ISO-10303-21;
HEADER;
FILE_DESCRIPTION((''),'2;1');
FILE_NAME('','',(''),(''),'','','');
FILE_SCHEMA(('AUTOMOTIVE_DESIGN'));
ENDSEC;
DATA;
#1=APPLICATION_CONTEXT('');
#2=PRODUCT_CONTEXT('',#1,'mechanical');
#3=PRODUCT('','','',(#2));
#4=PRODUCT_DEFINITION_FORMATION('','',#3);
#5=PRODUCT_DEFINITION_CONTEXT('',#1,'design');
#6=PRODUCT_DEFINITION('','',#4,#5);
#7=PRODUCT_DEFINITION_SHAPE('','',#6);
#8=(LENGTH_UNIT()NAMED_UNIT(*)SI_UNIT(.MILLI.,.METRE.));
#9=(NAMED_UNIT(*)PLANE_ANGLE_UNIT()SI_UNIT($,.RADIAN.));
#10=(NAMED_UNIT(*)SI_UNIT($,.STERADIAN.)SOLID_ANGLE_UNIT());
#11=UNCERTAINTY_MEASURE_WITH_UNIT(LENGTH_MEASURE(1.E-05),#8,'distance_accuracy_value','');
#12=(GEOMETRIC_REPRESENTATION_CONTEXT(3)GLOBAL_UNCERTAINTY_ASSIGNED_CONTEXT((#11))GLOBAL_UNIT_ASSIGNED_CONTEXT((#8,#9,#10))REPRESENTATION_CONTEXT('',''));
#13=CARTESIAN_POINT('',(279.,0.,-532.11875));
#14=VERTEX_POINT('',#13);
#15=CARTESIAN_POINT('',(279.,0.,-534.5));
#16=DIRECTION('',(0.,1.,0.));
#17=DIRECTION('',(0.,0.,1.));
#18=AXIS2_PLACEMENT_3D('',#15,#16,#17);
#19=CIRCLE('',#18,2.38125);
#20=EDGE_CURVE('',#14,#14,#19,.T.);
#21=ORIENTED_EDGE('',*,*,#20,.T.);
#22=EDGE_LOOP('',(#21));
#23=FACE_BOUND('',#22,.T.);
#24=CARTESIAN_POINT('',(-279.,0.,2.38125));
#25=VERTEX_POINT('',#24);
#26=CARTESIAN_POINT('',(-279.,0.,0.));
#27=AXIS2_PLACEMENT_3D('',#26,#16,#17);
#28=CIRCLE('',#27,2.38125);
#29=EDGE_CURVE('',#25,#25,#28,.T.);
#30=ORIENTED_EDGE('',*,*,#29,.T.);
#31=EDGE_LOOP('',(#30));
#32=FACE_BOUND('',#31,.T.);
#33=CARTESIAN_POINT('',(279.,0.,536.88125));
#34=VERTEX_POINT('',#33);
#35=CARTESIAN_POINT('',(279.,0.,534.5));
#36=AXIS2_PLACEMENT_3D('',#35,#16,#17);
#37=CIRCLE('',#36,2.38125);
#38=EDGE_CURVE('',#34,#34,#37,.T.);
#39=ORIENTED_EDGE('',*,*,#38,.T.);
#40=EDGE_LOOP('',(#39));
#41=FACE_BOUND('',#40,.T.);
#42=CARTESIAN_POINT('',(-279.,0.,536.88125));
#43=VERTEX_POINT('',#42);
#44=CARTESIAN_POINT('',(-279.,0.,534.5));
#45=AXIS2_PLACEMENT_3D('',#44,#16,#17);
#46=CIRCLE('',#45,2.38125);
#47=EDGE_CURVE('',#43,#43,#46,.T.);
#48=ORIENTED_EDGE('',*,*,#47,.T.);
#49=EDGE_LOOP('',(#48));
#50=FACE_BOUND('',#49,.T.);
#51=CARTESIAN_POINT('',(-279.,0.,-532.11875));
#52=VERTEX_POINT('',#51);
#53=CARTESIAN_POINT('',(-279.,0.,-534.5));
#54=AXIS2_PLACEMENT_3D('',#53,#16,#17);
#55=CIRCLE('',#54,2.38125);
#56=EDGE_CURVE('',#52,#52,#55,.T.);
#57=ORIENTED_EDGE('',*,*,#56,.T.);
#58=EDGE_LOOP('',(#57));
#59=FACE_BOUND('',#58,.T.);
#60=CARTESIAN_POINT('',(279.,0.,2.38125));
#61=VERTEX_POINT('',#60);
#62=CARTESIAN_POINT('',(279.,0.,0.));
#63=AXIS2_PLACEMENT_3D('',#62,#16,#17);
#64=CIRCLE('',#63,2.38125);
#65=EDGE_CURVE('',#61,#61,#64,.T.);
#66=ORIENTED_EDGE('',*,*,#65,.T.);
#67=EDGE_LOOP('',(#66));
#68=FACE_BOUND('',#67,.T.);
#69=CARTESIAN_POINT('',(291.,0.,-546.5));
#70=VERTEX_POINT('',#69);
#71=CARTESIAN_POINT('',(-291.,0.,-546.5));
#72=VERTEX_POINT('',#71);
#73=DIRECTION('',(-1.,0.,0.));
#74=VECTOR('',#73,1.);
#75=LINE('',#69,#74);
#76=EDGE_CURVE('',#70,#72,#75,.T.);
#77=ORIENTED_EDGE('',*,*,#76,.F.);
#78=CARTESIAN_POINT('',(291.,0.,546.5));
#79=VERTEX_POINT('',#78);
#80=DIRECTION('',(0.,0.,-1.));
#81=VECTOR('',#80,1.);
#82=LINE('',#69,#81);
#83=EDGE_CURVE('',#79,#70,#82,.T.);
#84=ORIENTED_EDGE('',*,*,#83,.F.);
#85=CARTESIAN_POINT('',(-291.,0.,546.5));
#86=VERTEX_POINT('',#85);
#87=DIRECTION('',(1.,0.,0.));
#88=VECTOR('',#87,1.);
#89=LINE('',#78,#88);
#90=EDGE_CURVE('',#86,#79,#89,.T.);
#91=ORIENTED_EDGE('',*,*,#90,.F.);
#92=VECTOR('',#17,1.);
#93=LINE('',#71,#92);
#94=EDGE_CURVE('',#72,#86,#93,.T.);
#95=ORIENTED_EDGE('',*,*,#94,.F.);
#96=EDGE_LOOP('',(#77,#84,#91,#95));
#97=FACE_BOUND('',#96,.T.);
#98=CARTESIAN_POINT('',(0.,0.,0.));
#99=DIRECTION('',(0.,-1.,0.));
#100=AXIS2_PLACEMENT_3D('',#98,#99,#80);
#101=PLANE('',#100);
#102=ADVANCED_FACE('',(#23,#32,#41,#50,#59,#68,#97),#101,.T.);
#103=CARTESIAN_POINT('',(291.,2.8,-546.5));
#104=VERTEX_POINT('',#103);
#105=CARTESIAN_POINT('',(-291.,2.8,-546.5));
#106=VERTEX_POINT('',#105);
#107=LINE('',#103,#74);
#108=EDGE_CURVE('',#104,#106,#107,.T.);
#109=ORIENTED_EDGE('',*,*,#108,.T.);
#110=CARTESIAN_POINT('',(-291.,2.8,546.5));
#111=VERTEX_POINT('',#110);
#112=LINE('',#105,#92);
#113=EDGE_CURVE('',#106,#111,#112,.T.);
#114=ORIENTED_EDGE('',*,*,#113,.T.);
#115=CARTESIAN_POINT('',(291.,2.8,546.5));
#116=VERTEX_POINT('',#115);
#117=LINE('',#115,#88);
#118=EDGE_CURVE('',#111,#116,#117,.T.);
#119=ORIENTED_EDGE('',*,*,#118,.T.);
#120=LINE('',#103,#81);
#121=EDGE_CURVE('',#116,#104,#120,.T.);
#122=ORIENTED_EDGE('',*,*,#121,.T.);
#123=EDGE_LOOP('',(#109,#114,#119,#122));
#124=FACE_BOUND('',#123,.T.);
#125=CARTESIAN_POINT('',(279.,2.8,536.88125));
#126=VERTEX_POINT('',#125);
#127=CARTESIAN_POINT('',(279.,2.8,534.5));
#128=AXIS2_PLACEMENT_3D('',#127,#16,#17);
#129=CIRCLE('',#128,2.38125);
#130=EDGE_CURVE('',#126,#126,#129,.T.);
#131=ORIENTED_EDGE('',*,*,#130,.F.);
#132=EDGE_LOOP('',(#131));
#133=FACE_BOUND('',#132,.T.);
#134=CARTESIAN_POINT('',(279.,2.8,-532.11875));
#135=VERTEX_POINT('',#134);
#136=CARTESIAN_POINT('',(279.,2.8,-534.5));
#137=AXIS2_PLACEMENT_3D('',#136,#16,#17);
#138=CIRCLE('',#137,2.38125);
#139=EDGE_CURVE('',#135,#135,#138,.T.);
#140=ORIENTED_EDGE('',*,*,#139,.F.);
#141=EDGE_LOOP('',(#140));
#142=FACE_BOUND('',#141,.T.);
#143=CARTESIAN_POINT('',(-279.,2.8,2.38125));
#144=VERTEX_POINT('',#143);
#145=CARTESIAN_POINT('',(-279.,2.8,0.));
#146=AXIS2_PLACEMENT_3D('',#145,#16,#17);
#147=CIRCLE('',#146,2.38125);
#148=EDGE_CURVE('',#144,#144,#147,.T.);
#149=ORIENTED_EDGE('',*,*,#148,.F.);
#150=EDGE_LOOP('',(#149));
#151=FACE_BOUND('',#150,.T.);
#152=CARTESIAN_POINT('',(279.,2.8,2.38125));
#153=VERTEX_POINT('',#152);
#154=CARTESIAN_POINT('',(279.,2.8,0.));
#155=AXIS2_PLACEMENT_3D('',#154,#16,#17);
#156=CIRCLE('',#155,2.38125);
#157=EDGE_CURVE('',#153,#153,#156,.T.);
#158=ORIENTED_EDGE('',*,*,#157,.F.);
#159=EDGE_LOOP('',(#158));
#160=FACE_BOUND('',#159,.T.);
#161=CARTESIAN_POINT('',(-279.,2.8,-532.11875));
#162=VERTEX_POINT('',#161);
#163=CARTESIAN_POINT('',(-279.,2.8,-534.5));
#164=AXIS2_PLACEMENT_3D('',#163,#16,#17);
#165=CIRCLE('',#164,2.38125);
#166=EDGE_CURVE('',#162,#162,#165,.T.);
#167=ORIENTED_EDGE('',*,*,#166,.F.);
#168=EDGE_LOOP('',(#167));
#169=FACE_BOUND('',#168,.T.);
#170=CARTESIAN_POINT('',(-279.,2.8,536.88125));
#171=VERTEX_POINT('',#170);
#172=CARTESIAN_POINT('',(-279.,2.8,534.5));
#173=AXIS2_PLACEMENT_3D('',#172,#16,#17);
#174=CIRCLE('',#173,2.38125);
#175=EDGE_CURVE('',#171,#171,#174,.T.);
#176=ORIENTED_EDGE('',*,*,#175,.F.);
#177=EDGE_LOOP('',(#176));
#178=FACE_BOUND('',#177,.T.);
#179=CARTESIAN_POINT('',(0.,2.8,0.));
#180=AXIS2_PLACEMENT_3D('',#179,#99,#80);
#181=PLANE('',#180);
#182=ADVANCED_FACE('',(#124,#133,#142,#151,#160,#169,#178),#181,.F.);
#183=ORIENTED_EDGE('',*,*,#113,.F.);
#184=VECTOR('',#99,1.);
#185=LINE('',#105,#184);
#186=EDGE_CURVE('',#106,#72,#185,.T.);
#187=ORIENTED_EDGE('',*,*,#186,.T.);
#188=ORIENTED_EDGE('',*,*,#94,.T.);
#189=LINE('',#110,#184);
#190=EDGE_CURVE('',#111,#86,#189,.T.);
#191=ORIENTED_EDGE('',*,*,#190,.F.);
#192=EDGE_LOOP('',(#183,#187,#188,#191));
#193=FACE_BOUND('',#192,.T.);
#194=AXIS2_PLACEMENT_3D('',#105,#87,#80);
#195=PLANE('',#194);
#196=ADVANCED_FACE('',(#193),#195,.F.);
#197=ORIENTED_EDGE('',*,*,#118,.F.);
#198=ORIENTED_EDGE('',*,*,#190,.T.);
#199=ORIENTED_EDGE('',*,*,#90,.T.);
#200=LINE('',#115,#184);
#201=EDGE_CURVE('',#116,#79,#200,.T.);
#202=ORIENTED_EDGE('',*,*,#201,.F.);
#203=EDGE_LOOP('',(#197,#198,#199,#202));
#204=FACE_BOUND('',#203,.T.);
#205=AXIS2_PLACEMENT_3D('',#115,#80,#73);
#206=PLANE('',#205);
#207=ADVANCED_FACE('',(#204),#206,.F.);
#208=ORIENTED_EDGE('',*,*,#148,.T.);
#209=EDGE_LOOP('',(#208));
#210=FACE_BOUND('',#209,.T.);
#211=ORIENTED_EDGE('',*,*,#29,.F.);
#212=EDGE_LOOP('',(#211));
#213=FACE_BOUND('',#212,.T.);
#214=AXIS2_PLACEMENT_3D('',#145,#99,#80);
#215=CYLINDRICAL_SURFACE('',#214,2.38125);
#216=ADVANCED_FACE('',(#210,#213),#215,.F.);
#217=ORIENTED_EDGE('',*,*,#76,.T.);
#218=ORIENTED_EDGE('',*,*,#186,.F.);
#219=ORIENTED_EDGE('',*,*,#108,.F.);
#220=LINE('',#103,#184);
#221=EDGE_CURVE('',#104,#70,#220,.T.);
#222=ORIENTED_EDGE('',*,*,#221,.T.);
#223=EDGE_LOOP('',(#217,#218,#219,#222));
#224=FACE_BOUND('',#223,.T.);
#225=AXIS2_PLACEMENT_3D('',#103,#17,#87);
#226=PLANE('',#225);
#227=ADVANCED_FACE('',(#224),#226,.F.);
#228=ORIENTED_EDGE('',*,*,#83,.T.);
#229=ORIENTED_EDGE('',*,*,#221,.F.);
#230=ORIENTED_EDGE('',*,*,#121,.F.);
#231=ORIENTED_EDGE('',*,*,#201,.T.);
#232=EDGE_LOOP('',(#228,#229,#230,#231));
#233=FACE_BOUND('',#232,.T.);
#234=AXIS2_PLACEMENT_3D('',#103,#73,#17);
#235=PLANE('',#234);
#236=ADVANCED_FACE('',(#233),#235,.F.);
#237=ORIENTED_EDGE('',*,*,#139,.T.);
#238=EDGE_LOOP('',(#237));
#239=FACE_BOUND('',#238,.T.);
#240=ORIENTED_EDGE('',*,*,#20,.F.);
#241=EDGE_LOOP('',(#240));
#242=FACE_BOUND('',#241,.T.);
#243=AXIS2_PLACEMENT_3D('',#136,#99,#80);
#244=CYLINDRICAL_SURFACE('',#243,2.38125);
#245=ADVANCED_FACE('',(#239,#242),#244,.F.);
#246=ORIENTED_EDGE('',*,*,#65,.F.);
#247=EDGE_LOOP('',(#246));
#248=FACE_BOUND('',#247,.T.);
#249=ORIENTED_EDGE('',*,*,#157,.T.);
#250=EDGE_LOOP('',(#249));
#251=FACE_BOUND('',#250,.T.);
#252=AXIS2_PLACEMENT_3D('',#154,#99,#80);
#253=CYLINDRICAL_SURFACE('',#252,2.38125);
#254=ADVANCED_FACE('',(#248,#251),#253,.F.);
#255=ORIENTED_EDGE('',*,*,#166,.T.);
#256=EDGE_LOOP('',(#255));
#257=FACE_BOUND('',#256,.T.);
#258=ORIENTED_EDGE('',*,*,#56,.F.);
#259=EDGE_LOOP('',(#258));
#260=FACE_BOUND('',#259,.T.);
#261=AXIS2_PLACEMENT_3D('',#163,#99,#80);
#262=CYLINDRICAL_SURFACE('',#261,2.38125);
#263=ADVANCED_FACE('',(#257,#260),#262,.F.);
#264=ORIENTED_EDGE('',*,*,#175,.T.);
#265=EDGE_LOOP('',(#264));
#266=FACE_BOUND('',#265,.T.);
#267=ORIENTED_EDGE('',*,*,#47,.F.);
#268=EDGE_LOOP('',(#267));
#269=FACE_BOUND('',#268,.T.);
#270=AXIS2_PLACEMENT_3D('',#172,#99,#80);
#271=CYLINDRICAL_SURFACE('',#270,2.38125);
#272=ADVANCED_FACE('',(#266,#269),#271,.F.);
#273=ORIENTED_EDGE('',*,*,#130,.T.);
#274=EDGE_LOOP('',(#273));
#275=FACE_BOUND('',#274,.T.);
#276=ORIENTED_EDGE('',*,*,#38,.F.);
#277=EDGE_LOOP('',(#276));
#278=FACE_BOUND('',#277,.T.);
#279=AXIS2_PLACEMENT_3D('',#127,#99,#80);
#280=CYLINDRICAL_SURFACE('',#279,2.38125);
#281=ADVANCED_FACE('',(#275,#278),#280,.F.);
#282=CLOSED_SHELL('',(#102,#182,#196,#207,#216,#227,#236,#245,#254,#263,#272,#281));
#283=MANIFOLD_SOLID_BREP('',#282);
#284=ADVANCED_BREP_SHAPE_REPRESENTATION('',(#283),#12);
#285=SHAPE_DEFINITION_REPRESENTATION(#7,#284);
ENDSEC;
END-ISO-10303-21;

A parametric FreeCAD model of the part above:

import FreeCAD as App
import Part
import Sketcher

V = App.Vector
Q = App.Units.Quantity

doc = App.newDocument("Part")
body = doc.addObject("PartDesign::Body", "Body")

# Sketch on XZ plane
sketch1 = body.newObject("Sketcher::SketchObject", "Sketch")
sketch1.AttachmentSupport = (doc.getObject("XZ_Plane"), [""])
sketch1.MapMode = "FlatFace"
sketch1.addGeometry([
    Part.LineSegment(V(-291, -546.5, 0), V(-291, 546.5, 0)),  # 0
    Part.LineSegment(V(-291, 546.5, 0), V(291, 546.5, 0)),  # 1
    Part.LineSegment(V(291, 546.5, 0), V(291, -546.5, 0)),  # 2
    Part.LineSegment(V(291, -546.5, 0), V(-291, -546.5, 0)),  # 3
    Part.Circle(V(-279, 534.5, 0), V(0, 0, 1), 2.4),  # 4
    Part.Circle(V(279, 534.5, 0), V(0, 0, 1), 2.4),  # 5
    Part.Circle(V(-279, 0, 0), V(0, 0, 1), 2.4),  # 6
    Part.Circle(V(-279, -534.5, 0), V(0, 0, 1), 2.4),  # 7
    Part.Circle(V(279, 0, 0), V(0, 0, 1), 2.4),  # 8
    Part.Circle(V(279, -534.5, 0), V(0, 0, 1), 2.4),  # 9
], False)
sketch1.addConstraint([
    Sketcher.Constraint("Coincident", 0, 2, 1, 1),
    Sketcher.Constraint("Coincident", 1, 2, 2, 1),
    Sketcher.Constraint("Coincident", 2, 2, 3, 1),
    Sketcher.Constraint("Coincident", 3, 2, 0, 1),
    Sketcher.Constraint("Vertical", 0),
    Sketcher.Constraint("Horizontal", 1),
    Sketcher.Constraint("Vertical", 2),
    Sketcher.Constraint("Horizontal", 3),
    Sketcher.Constraint("Equal", 4, 5),
    Sketcher.Constraint("Equal", 5, 6),
    Sketcher.Constraint("Equal", 6, 7),
    Sketcher.Constraint("Equal", 7, 8),
    Sketcher.Constraint("Equal", 8, 9),
    Sketcher.Constraint("Symmetric", 5, 3, 7, 3, -1, 1),
    Sketcher.Constraint("Symmetric", 6, 3, 8, 3, -1, 1),
    Sketcher.Constraint("Symmetric", 4, 3, 9, 3, -1, 1),
    Sketcher.Constraint("Symmetric", 0, 2, 2, 2, -1, 1),
    Sketcher.Constraint("Symmetric", 4, 3, 5, 3, -2),
    Sketcher.Constraint("PointOnObject", 6, 3, -1),
    Sketcher.Constraint("Vertical", 4, 3, 6, 3),
    Sketcher.Constraint("DistanceX", 1, 1, 1, 2, Q("582 mm")),
    Sketcher.Constraint("DistanceY", 0, 1, 0, 2, Q("1093 mm")),
    Sketcher.Constraint("DistanceX", 4, 3, -1, 1, Q("279 mm")),
    Sketcher.Constraint("DistanceY", 7, 3, 4, 3, Q("1069 mm")),
    Sketcher.Constraint("Diameter", 4, Q("4.7625 mm")),
])
pad1 = body.newObject("PartDesign::Pad", "Pad")
pad1.Profile = sketch1
pad1.Length = 2.8
pad1.Reversed = True

doc.recompute()
